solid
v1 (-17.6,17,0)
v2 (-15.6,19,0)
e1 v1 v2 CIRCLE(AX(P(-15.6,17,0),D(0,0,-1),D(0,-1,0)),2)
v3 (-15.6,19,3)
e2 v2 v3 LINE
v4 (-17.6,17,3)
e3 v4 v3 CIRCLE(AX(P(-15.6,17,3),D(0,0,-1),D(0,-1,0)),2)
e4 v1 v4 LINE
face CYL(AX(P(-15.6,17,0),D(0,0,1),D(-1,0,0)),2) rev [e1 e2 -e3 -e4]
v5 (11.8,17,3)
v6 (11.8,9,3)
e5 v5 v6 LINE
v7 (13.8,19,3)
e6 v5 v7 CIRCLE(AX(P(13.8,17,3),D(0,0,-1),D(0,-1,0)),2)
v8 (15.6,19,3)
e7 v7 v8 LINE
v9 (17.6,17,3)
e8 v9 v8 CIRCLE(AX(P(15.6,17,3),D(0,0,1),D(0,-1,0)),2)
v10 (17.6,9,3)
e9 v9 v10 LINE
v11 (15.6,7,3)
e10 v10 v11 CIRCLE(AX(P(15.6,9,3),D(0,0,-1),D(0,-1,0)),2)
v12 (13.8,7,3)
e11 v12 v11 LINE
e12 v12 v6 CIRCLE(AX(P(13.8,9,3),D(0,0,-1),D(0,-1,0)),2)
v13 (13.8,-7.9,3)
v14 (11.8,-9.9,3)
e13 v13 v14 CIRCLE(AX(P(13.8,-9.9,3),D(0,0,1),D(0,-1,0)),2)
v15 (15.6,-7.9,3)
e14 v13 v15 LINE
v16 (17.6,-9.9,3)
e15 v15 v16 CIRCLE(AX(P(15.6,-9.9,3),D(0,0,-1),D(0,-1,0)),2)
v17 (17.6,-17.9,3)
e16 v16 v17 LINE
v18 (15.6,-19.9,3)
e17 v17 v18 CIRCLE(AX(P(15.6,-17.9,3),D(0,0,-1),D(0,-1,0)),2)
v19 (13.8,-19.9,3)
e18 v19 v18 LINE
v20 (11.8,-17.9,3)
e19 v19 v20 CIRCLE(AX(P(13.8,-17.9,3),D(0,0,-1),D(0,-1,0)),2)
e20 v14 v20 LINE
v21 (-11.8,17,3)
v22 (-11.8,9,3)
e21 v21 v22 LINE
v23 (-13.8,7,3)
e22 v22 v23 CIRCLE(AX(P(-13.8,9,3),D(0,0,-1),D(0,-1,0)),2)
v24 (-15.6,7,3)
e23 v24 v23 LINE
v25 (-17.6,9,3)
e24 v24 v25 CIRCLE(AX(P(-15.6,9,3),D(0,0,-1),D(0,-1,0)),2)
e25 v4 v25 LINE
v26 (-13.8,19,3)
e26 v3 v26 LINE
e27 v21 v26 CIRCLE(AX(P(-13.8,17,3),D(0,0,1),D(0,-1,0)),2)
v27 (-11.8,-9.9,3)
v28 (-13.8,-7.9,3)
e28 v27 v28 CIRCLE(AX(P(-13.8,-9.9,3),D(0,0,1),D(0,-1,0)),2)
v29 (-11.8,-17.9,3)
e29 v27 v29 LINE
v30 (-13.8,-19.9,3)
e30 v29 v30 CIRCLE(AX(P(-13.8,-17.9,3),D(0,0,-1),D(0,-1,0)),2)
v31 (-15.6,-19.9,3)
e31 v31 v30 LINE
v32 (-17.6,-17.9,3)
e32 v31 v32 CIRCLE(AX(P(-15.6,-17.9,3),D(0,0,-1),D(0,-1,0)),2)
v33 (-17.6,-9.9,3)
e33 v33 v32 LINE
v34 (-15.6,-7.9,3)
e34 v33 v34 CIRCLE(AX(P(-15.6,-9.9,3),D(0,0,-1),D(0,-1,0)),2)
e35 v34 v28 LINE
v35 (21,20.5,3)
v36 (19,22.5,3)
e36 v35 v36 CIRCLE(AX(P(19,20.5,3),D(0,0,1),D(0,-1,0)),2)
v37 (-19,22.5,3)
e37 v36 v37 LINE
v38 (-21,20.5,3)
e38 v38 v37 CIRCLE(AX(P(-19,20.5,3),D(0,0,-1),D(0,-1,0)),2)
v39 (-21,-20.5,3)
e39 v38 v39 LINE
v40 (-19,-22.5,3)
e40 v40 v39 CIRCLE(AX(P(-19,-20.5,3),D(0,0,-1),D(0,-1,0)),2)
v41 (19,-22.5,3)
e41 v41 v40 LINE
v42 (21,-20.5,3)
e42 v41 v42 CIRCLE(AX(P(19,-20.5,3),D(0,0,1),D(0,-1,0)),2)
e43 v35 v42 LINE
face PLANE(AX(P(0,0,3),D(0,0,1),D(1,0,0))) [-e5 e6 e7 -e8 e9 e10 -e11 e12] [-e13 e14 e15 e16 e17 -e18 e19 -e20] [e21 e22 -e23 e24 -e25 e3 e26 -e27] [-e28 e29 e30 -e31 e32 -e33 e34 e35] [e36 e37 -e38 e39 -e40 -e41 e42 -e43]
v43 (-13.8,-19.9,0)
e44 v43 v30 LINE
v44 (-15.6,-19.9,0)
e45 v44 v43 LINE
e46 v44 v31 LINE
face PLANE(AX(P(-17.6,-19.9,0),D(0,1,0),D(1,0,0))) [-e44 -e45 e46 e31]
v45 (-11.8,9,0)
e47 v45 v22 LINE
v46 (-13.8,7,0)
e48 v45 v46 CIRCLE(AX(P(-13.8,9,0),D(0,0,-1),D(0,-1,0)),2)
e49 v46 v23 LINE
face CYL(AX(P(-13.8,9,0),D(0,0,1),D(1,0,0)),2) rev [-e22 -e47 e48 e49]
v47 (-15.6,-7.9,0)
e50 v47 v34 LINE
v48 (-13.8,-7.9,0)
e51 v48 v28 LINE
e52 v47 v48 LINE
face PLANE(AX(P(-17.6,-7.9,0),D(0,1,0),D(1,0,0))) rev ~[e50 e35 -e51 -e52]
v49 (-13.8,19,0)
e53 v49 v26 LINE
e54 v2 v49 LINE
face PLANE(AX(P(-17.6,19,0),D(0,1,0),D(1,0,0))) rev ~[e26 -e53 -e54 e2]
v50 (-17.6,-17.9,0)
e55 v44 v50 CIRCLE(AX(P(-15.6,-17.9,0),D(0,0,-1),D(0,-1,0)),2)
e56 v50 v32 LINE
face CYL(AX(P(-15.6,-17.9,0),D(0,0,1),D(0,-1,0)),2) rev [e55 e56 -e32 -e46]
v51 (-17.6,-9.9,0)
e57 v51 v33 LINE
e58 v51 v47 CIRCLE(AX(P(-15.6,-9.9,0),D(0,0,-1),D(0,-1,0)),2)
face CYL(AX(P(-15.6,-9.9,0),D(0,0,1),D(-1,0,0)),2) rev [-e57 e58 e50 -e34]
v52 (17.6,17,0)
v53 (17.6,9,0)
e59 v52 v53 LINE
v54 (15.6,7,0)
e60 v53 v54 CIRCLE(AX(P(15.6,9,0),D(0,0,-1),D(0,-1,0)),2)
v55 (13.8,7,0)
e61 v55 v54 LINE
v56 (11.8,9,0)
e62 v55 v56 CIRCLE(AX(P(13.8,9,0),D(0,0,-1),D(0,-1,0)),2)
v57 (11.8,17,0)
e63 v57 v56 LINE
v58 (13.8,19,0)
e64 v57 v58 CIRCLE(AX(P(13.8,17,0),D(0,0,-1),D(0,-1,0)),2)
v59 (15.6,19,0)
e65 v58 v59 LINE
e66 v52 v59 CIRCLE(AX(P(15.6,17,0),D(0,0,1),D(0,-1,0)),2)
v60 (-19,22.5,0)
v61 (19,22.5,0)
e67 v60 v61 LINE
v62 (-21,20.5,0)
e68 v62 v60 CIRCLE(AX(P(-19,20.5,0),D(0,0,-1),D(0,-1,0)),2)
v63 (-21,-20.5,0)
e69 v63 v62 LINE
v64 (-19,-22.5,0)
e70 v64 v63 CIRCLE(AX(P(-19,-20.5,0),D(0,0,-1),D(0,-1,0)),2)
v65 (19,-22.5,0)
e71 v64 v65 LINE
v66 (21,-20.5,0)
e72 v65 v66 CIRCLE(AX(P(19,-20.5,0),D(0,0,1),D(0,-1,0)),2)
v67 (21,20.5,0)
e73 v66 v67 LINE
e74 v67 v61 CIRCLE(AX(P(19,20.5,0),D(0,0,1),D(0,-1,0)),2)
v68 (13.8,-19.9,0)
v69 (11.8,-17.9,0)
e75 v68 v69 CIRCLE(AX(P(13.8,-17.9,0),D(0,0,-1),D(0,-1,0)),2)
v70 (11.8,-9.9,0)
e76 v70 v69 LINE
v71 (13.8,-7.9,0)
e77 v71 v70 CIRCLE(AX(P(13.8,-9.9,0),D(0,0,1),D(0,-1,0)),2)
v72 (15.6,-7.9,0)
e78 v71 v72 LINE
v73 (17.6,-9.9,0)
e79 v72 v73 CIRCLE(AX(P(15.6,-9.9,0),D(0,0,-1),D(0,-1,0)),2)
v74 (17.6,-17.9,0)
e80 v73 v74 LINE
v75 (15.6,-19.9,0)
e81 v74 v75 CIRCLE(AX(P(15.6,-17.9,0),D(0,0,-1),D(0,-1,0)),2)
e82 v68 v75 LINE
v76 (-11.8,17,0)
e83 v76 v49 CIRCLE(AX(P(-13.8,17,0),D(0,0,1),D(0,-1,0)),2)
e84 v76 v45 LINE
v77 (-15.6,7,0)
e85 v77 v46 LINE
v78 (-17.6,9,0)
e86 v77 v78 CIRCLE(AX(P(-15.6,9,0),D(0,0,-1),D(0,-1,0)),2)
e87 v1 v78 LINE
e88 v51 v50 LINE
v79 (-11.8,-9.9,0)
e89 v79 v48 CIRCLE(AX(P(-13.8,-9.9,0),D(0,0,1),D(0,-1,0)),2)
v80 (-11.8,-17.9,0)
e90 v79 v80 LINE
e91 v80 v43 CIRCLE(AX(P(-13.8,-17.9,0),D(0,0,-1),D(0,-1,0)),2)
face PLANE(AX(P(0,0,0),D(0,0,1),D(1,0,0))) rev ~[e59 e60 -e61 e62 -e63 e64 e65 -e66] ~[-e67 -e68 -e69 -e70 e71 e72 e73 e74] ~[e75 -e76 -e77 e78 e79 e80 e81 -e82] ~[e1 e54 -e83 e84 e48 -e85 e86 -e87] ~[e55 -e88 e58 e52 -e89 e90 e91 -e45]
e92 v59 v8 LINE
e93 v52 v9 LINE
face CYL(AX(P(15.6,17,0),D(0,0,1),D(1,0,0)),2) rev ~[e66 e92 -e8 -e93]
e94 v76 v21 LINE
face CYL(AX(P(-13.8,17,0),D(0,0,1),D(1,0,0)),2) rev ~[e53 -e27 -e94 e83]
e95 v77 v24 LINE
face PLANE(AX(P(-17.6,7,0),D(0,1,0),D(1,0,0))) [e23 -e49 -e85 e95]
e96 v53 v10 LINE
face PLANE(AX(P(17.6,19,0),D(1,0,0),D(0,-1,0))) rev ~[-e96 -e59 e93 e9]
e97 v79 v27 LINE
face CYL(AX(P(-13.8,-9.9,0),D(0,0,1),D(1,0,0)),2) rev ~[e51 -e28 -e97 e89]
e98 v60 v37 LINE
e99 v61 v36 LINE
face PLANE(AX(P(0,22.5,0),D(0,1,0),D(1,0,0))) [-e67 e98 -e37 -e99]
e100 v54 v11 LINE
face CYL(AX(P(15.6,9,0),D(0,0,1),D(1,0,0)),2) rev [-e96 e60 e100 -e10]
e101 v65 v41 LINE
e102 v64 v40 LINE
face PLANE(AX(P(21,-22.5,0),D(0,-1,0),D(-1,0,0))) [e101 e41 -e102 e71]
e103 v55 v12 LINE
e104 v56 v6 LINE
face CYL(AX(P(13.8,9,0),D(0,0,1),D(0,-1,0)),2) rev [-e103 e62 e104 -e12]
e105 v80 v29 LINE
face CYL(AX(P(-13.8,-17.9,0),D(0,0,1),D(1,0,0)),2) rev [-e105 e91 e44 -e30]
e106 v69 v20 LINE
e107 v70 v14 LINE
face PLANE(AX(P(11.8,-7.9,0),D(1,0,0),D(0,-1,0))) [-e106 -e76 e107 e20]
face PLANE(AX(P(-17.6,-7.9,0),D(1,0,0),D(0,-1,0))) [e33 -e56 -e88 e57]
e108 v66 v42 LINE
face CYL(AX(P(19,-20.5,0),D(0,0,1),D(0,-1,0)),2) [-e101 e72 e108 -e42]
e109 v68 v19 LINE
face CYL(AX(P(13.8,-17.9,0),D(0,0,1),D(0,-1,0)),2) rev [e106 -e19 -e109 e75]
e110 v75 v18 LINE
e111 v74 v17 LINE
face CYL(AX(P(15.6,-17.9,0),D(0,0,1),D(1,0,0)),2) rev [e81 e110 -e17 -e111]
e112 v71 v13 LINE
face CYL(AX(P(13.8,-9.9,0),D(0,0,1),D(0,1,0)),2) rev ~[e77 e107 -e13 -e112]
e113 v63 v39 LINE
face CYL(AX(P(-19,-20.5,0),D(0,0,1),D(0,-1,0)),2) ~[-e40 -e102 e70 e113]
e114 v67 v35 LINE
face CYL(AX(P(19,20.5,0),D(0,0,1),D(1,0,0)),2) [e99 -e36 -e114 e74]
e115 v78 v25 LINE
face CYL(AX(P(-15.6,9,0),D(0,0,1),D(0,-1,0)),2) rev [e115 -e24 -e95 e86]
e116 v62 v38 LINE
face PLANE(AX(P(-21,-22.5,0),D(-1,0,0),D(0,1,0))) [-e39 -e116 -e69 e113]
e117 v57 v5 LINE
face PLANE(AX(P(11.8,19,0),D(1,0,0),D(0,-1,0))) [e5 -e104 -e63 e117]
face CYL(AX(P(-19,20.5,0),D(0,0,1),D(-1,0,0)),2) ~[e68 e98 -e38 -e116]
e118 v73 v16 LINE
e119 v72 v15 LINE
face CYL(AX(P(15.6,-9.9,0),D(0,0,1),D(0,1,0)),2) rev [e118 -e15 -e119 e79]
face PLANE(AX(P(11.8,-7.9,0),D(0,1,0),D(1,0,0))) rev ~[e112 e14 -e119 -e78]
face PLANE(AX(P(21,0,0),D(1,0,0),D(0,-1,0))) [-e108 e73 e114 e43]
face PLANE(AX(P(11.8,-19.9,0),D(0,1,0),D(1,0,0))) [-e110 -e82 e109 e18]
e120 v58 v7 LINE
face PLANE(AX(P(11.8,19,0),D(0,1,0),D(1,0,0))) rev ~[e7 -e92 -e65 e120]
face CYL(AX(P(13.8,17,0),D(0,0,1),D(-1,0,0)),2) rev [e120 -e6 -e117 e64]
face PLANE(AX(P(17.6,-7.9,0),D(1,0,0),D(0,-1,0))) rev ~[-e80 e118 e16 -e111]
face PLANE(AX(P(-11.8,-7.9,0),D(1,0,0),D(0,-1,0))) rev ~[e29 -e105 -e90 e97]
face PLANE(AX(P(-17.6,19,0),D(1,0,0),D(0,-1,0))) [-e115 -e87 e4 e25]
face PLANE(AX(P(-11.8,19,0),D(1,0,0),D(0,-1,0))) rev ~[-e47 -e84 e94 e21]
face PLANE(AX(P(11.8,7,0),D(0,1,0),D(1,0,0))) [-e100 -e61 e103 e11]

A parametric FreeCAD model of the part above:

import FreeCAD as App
import Part
import Sketcher
from FreeCAD import Vector


def edges_at(feature, points):
    """Names of the edges that pass closest to the given points."""
    edges = feature.Shape.Edges
    near = lambda p: min(range(len(edges)), key=lambda i: edges[i].distToShape(Part.Vertex(*p))[0])
    return sorted({f"Edge{near(p) + 1}" for p in points})


def add_polygon(sketch, points):
    """Adds a closed chain of lines whose ends are joined by coincident constraints."""
    first, n = sketch.GeometryCount, len(points)
    for a, b in zip(points, points[1:] + points[:1]):
        sketch.addGeometry(Part.LineSegment(App.Vector(*a, 0), App.Vector(*b, 0)), False)
    for i in range(n):
        sketch.addConstraint(Sketcher.Constraint("Coincident", first + i, 2, first + (i + 1) % n, 1))

doc = App.newDocument("Part")
body = doc.addObject("PartDesign::Body", "Body")

sketch1 = body.newObject("Sketcher::SketchObject", "Sketch")
sketch1.AttachmentSupport = (doc.getObject("XY_Plane"), [""])
sketch1.MapMode = "FlatFace"
add_polygon(sketch1, [(21, -22), (21, 22), (-21, 22), (-21, -22)])
add_polygon(sketch1, [(12, -8), (18, -8), (18, -20), (12, -20)])
add_polygon(sketch1, [(-12, -8), (-12, -20), (-18, -20), (-18, -8)])
add_polygon(sketch1, [(18, 19), (18, 7), (12, 7), (12, 19)])
add_polygon(sketch1, [(-12, 19), (-12, 7), (-18, 7), (-18, 19)])
sketch1.addConstraint(Sketcher.Constraint("Vertical", 0))
sketch1.addConstraint(Sketcher.Constraint("Horizontal", 1))
sketch1.addConstraint(Sketcher.Constraint("Vertical", 2))
sketch1.addConstraint(Sketcher.Constraint("Horizontal", 3))
sketch1.addConstraint(Sketcher.Constraint("Horizontal", 4))
sketch1.addConstraint(Sketcher.Constraint("Vertical", 5))
sketch1.addConstraint(Sketcher.Constraint("Horizontal", 6))
sketch1.addConstraint(Sketcher.Constraint("Vertical", 7))
sketch1.addConstraint(Sketcher.Constraint("Vertical", 8))
sketch1.addConstraint(Sketcher.Constraint("Horizontal", 9))
sketch1.addConstraint(Sketcher.Constraint("Vertical", 10))
sketch1.addConstraint(Sketcher.Constraint("Horizontal", 11))
sketch1.addConstraint(Sketcher.Constraint("Vertical", 12))
sketch1.addConstraint(Sketcher.Constraint("Horizontal", 13))
sketch1.addConstraint(Sketcher.Constraint("Vertical", 14))
sketch1.addConstraint(Sketcher.Constraint("Horizontal", 15))
sketch1.addConstraint(Sketcher.Constraint("Vertical", 16))
sketch1.addConstraint(Sketcher.Constraint("Horizontal", 17))
sketch1.addConstraint(Sketcher.Constraint("Vertical", 18))
sketch1.addConstraint(Sketcher.Constraint("Horizontal", 19))
sketch1.addConstraint(Sketcher.Constraint("Symmetric", 0, 2, 2, 2, -1, 1))
sketch1.addConstraint(Sketcher.Constraint("Symmetric", 6, 2, 8, 2, -2))
sketch1.addConstraint(Sketcher.Constraint("Symmetric", 4, 2, 10, 2, -2))
sketch1.addConstraint(Sketcher.Constraint("Symmetric", 13, 2, 16, 2, -2))
sketch1.addConstraint(Sketcher.Constraint("Symmetric", 15, 2, 18, 2, -2))
sketch1.addConstraint(Sketcher.Constraint("Vertical", 5, 2, 12, 2))
sketch1.addConstraint(Sketcher.Constraint("Vertical", 7, 2, 13, 2))
sketch1.addConstraint(Sketcher.Constraint("Equal", 10, 12))
sketch1.addConstraint(Sketcher.Constraint("DistanceX", 1, 2, 1, 1, 42.0))
sketch1.addConstraint(Sketcher.Constraint("DistanceY", 0, 1, 0, 2, 45.0))
sketch1.addConstraint(Sketcher.Constraint("DistanceY", 4, 2, 0, 2, 30.4))
sketch1.addConstraint(Sketcher.Constraint("DistanceY", 5, 2, 0, 2, 42.4))
sketch1.addConstraint(Sketcher.Constraint("DistanceY", 12, 2, 0, 2, 15.5))
sketch1.addConstraint(Sketcher.Constraint("DistanceX", 4, 1, 4, 2, 5.8))
sketch1.addConstraint(Sketcher.Constraint("DistanceX", -1, 1, 4, 2, 17.6))
pad1 = body.newObject("PartDesign::Pad", "Pad")
pad1.Profile = sketch1
pad1.Length = 3
doc.recompute()

fillet = body.newObject("PartDesign::Fillet", "Fillet")
fillet.Base = (pad1, edges_at(pad1, [
    (-21, 22.5, 1.5),
    (21, 22.5, 1.5),
    (21, -22.5, 1.5),
    (-21, -22.5, 1.5),
]))
fillet.Radius = 2
doc.recompute()

fillet2 = body.newObject("PartDesign::Fillet", "Fillet001")
fillet2.Base = (fillet, edges_at(fillet, [
    (17.6, 7, 1.5),
    (11.8, 7, 1.5),
    (11.8, 19, 1.5),
    (17.6, 19, 1.5),
]))
fillet2.Radius = 2
doc.recompute()

fillet3 = body.newObject("PartDesign::Fillet", "Fillet002")
fillet3.Base = (fillet2, edges_at(fillet2, [
    (-17.6, 19, 1.5),
    (-11.8, 19, 1.5),
    (-11.8, 7, 1.5),
    (-17.6, 7, 1.5),
]))
fillet3.Radius = 2
doc.recompute()

fillet4 = body.newObject("PartDesign::Fillet", "Fillet003")
fillet4.Base = (fillet3, edges_at(fillet3, [
    (-11.8, -19.9, 1.5),
    (-17.6, -19.9, 1.5),
    (-17.6, -7.9, 1.5),
    (-11.8, -7.9, 1.5),
]))
fillet4.Radius = 2
doc.recompute()

fillet5 = body.newObject("PartDesign::Fillet", "Fillet004")
fillet5.Base = (fillet4, edges_at(fillet4, [
    (11.8, -7.9, 1.5),
    (17.6, -7.9, 1.5),
    (11.8, -19.9, 1.5),
    (17.6, -19.9, 1.5),
]))
fillet5.Radius = 2

doc.recompute()
